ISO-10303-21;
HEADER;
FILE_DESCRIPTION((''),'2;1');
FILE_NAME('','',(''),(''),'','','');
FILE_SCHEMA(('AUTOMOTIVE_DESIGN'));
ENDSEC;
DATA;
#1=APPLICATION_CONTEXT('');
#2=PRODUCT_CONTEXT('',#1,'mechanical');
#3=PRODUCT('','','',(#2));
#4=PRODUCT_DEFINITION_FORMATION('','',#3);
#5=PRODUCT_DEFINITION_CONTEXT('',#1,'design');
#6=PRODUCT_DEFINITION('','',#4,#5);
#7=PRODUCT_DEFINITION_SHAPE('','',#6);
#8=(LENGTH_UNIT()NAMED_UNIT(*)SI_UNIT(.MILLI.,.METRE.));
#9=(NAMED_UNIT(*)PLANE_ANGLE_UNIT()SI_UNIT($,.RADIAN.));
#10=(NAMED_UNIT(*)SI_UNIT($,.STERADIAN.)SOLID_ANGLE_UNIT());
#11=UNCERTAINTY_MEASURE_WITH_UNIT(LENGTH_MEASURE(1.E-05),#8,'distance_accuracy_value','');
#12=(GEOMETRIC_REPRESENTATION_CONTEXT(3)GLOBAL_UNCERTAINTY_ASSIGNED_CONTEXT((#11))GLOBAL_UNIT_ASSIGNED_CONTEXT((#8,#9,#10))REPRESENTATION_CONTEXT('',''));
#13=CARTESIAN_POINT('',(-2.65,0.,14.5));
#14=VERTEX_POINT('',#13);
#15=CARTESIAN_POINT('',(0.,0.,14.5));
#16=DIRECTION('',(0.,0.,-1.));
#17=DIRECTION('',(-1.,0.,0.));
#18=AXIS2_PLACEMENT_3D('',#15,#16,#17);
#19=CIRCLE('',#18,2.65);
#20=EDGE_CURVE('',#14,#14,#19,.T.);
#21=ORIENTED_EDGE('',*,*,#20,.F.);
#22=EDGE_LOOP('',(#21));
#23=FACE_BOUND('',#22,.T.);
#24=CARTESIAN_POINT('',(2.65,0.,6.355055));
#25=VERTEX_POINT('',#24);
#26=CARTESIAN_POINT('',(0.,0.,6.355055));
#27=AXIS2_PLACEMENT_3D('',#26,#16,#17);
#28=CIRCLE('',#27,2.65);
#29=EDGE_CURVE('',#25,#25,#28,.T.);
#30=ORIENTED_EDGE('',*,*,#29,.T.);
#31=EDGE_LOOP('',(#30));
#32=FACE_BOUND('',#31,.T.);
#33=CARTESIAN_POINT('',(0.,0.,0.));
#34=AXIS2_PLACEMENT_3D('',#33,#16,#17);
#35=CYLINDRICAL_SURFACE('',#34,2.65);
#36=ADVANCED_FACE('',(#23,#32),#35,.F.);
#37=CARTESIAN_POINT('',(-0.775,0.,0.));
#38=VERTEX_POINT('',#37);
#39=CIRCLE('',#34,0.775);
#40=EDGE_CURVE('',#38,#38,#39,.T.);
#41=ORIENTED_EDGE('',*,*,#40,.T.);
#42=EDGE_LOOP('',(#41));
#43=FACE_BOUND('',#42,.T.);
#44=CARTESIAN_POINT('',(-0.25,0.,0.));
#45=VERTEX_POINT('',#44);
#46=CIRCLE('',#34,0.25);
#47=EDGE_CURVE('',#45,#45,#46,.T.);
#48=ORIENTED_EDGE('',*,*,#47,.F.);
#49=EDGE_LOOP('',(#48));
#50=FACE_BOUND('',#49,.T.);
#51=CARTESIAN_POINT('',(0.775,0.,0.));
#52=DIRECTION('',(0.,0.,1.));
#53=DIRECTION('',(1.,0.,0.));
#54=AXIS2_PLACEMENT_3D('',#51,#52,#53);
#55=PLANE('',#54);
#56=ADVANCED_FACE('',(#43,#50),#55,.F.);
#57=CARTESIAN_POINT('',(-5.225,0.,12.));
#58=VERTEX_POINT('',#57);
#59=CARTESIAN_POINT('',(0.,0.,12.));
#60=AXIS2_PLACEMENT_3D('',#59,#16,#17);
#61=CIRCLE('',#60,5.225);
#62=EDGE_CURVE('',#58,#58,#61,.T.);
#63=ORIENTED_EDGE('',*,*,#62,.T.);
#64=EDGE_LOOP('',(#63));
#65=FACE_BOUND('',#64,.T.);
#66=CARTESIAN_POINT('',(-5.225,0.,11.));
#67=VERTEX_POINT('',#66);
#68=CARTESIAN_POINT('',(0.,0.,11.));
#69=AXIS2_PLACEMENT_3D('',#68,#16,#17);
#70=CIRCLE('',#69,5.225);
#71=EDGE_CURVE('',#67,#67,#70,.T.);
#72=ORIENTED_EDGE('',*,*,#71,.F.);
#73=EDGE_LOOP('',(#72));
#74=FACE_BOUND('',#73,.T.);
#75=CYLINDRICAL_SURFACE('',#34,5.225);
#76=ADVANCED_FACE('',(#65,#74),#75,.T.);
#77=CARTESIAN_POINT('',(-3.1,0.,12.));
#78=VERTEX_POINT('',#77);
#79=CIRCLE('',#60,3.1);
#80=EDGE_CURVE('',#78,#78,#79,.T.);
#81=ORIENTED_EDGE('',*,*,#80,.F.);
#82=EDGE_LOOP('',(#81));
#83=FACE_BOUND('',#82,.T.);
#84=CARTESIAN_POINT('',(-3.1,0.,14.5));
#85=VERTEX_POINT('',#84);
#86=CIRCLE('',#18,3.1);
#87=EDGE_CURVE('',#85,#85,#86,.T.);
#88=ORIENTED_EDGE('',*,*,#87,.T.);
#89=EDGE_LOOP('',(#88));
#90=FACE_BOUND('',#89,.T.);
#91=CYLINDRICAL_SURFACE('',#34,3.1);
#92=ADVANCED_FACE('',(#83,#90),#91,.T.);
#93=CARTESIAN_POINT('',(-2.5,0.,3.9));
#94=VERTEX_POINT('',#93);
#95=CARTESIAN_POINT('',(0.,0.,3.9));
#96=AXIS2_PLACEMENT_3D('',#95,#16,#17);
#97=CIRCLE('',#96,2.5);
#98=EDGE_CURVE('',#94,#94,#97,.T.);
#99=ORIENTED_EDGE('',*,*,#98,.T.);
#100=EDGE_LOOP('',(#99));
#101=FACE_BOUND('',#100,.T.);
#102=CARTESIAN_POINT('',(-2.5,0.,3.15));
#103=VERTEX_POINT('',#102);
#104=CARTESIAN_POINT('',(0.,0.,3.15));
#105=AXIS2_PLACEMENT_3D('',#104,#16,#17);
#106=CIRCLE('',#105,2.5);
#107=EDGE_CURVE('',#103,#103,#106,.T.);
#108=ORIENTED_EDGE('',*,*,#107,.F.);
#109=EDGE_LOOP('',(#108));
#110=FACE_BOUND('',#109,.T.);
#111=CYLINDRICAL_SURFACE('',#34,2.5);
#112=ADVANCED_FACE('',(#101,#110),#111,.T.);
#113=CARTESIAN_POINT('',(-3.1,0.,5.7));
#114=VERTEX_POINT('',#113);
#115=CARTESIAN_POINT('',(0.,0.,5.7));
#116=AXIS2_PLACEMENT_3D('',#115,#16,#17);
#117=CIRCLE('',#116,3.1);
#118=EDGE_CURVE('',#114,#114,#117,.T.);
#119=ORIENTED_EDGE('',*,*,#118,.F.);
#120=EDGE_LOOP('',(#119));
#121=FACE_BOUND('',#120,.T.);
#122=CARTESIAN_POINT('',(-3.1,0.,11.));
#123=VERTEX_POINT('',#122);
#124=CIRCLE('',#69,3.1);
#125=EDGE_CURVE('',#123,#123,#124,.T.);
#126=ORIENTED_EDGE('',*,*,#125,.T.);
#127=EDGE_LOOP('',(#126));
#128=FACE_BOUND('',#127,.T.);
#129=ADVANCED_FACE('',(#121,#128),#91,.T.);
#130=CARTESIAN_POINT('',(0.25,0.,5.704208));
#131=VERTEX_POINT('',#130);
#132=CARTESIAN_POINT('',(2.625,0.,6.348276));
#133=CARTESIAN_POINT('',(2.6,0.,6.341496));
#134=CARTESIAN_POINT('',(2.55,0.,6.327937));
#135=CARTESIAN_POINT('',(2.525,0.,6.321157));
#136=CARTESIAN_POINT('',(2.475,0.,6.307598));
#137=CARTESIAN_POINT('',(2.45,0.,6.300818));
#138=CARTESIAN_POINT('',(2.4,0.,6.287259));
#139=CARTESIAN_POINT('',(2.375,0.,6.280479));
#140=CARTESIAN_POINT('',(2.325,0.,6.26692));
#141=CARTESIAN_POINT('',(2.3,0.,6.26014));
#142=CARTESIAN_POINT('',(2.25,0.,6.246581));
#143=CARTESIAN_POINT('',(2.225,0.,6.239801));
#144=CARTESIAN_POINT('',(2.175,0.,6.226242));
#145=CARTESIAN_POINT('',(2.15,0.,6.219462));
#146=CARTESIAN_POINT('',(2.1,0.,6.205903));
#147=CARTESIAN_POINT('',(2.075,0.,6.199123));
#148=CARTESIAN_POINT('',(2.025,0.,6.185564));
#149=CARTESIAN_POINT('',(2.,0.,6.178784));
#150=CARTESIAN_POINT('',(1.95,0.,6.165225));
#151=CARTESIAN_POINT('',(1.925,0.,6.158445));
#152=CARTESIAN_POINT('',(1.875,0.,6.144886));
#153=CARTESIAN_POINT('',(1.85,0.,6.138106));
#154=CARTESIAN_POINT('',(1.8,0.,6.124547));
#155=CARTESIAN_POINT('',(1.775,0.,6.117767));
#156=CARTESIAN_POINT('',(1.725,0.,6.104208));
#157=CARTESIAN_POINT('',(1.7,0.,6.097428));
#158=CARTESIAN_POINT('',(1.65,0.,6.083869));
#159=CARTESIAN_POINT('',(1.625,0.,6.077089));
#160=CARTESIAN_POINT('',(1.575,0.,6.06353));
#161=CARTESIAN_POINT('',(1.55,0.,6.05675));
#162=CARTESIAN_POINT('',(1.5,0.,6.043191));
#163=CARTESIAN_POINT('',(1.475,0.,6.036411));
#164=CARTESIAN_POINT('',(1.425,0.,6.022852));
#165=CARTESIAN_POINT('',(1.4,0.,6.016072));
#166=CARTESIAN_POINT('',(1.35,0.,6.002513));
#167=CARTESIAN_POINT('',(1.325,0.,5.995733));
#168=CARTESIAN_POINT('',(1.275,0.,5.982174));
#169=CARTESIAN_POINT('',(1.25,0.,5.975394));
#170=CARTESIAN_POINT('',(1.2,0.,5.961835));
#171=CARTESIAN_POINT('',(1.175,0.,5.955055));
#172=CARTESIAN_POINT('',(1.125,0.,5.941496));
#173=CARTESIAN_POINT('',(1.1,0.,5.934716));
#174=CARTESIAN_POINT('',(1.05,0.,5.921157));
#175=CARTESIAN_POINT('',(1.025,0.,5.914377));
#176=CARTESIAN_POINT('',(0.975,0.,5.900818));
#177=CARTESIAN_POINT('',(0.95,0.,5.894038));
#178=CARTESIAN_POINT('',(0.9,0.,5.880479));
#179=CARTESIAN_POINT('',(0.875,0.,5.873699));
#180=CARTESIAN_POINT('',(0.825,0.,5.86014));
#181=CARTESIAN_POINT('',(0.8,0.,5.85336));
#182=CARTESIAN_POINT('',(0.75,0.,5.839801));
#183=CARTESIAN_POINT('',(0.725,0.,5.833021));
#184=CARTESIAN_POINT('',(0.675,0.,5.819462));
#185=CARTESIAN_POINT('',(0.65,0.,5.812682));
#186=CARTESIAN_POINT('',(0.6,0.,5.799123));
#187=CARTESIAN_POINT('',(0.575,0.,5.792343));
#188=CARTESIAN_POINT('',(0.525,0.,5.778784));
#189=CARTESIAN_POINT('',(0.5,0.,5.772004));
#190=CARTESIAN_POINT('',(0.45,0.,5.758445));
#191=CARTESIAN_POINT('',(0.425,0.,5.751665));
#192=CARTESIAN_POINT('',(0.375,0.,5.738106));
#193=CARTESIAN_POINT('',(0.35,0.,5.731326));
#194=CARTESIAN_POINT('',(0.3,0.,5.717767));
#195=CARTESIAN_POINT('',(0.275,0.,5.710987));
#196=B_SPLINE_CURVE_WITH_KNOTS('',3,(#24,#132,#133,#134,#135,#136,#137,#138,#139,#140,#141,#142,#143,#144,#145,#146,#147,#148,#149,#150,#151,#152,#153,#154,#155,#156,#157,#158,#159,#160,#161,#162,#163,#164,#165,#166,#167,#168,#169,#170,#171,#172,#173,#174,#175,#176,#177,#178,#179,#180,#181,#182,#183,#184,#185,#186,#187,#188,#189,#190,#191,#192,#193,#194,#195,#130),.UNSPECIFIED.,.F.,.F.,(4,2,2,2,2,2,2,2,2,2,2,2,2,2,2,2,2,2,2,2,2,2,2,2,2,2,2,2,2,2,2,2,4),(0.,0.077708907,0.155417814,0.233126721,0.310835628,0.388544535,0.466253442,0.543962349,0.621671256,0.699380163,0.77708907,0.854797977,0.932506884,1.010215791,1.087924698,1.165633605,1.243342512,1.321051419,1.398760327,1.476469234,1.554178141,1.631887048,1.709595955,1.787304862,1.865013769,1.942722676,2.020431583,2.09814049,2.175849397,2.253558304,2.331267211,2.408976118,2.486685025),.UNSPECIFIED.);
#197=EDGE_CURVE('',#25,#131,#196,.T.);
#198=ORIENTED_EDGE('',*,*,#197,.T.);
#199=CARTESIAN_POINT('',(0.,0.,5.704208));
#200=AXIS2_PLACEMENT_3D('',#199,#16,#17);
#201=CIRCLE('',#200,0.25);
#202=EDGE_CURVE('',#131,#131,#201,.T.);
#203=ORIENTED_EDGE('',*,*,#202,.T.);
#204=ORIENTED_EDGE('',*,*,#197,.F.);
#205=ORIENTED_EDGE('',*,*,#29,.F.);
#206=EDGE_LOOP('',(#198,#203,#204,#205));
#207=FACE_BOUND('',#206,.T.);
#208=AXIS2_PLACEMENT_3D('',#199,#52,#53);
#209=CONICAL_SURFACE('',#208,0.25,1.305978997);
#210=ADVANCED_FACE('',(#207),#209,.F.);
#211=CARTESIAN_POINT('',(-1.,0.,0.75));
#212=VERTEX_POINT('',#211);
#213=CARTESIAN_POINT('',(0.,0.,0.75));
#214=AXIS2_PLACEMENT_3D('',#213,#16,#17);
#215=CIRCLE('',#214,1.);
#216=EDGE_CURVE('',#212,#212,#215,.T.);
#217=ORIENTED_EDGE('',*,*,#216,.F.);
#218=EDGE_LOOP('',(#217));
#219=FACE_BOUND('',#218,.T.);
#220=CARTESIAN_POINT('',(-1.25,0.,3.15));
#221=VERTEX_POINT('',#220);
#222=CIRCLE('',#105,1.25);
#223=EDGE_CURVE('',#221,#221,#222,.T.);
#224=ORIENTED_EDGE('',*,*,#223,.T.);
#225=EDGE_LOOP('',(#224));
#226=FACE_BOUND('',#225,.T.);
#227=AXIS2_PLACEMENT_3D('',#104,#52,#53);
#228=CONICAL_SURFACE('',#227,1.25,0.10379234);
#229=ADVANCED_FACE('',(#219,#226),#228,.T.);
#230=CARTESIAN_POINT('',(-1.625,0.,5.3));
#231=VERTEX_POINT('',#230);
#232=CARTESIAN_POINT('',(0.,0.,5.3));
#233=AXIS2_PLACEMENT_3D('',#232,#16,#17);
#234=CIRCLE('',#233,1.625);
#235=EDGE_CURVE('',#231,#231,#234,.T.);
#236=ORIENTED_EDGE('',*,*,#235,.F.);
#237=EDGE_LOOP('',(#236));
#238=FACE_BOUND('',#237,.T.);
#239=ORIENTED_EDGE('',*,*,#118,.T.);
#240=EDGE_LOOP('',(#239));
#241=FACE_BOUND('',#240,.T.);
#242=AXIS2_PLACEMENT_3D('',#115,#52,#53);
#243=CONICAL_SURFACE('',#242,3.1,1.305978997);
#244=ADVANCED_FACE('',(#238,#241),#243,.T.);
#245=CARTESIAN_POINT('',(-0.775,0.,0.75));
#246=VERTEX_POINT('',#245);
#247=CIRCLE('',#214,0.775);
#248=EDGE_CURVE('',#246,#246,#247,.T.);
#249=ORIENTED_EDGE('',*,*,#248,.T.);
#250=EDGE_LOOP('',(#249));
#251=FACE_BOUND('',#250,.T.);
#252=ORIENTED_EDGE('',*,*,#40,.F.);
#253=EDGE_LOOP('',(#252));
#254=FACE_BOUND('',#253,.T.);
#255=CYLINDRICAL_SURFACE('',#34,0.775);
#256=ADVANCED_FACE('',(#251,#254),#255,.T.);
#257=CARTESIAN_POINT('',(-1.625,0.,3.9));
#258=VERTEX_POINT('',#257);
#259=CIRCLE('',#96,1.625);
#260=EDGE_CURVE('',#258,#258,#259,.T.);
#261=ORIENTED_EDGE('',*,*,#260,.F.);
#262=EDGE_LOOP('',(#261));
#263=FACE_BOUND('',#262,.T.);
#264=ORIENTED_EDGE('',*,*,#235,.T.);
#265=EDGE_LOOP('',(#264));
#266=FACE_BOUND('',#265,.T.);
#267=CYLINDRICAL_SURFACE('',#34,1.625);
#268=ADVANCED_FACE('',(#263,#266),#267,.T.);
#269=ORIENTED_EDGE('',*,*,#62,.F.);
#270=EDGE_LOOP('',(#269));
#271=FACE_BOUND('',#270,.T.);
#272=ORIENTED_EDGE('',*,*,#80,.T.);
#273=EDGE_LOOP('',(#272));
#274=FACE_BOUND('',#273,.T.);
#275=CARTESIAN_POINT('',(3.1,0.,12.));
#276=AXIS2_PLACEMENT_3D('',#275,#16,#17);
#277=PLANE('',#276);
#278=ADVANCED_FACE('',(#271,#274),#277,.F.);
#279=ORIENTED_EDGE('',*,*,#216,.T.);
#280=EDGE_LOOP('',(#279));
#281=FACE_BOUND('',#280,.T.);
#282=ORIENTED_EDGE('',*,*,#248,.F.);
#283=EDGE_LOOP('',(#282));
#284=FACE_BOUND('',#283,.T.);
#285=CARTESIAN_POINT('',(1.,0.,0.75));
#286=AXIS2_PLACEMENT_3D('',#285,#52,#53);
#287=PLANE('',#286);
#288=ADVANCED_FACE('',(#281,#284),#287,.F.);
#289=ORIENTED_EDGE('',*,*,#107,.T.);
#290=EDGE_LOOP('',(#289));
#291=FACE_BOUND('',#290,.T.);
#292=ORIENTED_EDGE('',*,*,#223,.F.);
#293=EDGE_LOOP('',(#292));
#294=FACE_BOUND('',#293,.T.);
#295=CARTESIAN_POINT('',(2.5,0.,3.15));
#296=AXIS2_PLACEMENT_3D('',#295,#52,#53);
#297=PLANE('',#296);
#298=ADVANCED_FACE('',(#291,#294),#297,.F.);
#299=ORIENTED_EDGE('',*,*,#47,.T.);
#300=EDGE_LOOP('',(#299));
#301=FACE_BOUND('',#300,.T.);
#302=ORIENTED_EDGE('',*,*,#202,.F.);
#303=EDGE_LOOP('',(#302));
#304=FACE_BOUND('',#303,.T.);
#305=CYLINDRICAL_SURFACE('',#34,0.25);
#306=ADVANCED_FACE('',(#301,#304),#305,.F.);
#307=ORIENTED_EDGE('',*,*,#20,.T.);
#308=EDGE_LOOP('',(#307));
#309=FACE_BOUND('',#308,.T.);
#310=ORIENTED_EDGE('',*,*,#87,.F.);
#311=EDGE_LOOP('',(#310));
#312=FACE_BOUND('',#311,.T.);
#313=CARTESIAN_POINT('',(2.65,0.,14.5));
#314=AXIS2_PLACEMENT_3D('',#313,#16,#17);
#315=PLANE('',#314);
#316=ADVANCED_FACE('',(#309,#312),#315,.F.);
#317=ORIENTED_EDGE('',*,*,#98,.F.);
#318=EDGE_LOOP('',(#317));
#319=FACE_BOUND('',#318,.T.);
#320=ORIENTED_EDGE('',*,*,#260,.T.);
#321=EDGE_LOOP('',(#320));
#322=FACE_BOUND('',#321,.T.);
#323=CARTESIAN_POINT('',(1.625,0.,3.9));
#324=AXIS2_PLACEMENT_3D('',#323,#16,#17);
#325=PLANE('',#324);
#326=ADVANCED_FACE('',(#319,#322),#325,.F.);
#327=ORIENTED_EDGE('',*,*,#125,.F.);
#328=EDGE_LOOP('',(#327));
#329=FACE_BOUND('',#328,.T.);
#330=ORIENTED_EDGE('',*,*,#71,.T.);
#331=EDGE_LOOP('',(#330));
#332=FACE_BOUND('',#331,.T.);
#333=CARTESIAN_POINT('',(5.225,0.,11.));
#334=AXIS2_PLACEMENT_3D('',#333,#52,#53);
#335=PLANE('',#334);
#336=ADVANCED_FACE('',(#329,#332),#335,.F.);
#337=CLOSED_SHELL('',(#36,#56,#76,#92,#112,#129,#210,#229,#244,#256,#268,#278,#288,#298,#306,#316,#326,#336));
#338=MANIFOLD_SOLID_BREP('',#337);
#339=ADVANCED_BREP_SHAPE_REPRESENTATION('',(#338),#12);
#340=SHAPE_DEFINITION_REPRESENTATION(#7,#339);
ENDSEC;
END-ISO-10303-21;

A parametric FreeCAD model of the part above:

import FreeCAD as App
import Part
import Sketcher
Q = App.Units.Quantity

doc = App.newDocument("Part")
body = doc.addObject("PartDesign::Body", "Body")

# Sketch on XZ plane
sketch1 = body.newObject("Sketcher::SketchObject", "Sketch")
sketch1.AttachmentSupport = (doc.getObject("XZ_Plane"), [""])
sketch1.MapMode = "FlatFace"
sketch1.addGeometry([
    Part.LineSegment(App.Vector(2.65, 14.5, 0), App.Vector(3.1, 14.5, 0)),  # 0
    Part.LineSegment(App.Vector(3.1, 14.5, 0), App.Vector(3.1, 12, 0)),  # 1
    Part.LineSegment(App.Vector(3.1, 12, 0), App.Vector(5.22, 12, 0)),  # 2
    Part.LineSegment(App.Vector(5.22, 12, 0), App.Vector(5.22, 11, 0)),  # 3
    Part.LineSegment(App.Vector(5.22, 11, 0), App.Vector(3.1, 11, 0)),  # 4
    Part.LineSegment(App.Vector(3.1, 11, 0), App.Vector(3.1, 5.7, 0)),  # 5
    Part.LineSegment(App.Vector(3.1, 5.7, 0), App.Vector(1.62, 5.3, 0)),  # 6
    Part.LineSegment(App.Vector(1.62, 5.3, 0), App.Vector(1.62, 3.9, 0)),  # 7
    Part.LineSegment(App.Vector(1.62, 3.9, 0), App.Vector(2.5, 3.9, 0)),  # 8
    Part.LineSegment(App.Vector(2.5, 3.9, 0), App.Vector(2.5, 3.15, 0)),  # 9
    Part.LineSegment(App.Vector(2.5, 3.15, 0), App.Vector(1.25, 3.15, 0)),  # 10
    Part.LineSegment(App.Vector(1.25, 3.15, 0), App.Vector(1, 0.75, 0)),  # 11
    Part.LineSegment(App.Vector(1, 0.75, 0), App.Vector(0.78, 0.75, 0)),  # 12
    Part.LineSegment(App.Vector(0.78, 0.75, 0), App.Vector(0.78, 0, 0)),  # 13
    Part.LineSegment(App.Vector(0.78, 0, 0), App.Vector(0.25, 0, 0)),  # 14
    Part.LineSegment(App.Vector(0.25, 0, 0), App.Vector(0.25, 5.7, 0)),  # 15
    Part.LineSegment(App.Vector(0.25, 5.7, 0), App.Vector(2.65, 6.36, 0)),  # 16
    Part.LineSegment(App.Vector(2.65, 6.36, 0), App.Vector(2.65, 14.5, 0)),  # 17
], False)
sketch1.addConstraint([
    Sketcher.Constraint("Coincident", 0, 2, 1, 1),
    Sketcher.Constraint("Coincident", 1, 2, 2, 1),
    Sketcher.Constraint("Coincident", 2, 2, 3, 1),
    Sketcher.Constraint("Coincident", 3, 2, 4, 1),
    Sketcher.Constraint("Coincident", 4, 2, 5, 1),
    Sketcher.Constraint("Coincident", 5, 2, 6, 1),
    Sketcher.Constraint("Coincident", 6, 2, 7, 1),
    Sketcher.Constraint("Coincident", 7, 2, 8, 1),
    Sketcher.Constraint("Coincident", 8, 2, 9, 1),
    Sketcher.Constraint("Coincident", 9, 2, 10, 1),
    Sketcher.Constraint("Coincident", 10, 2, 11, 1),
    Sketcher.Constraint("Coincident", 11, 2, 12, 1),
    Sketcher.Constraint("Coincident", 12, 2, 13, 1),
    Sketcher.Constraint("Coincident", 13, 2, 14, 1),
    Sketcher.Constraint("Coincident", 14, 2, 15, 1),
    Sketcher.Constraint("Coincident", 15, 2, 16, 1),
    Sketcher.Constraint("Coincident", 16, 2, 17, 1),
    Sketcher.Constraint("Coincident", 17, 2, 0, 1),
    Sketcher.Constraint("Horizontal", 0),
    Sketcher.Constraint("Vertical", 1),
    Sketcher.Constraint("Horizontal", 2),
    Sketcher.Constraint("Vertical", 3),
    Sketcher.Constraint("Horizontal", 4),
    Sketcher.Constraint("Vertical", 5),
    Sketcher.Constraint("Vertical", 7),
    Sketcher.Constraint("Horizontal", 8),
    Sketcher.Constraint("Vertical", 9),
    Sketcher.Constraint("Horizontal", 10),
    Sketcher.Constraint("Horizontal", 12),
    Sketcher.Constraint("Vertical", 13),
    Sketcher.Constraint("Horizontal", 14),
    Sketcher.Constraint("Vertical", 15),
    Sketcher.Constraint("Vertical", 17),
    Sketcher.Constraint("PointOnObject", 13, 2, -1),
    Sketcher.Constraint("Parallel", 6, 16),
    Sketcher.Constraint("Vertical", 1, 2, 4, 2),
    Sketcher.Constraint("Equal", 9, 13),
    Sketcher.Constraint("DistanceY", 3, 2, 3, 1, Q("1 mm")),
    Sketcher.Constraint("DistanceY", 1, 2, 1, 1, Q("2.5 mm")),
    Sketcher.Constraint("DistanceY", 5, 2, 5, 1, Q("5.3 mm")),
    Sketcher.Constraint("DistanceY", 7, 2, 7, 1, Q("1.4 mm")),
    Sketcher.Constraint("DistanceY", -1, 1, 1, 2, Q("12 mm")),
    Sketcher.Constraint("DistanceX", -1, 1, 11, 2, Q("1 mm")),
    Sketcher.Constraint("DistanceX", 14, 2, 10, 2, Q("1 mm")),
    Sketcher.Constraint("DistanceX", 0, 1, 0, 2, Q("0.45 mm")),
    Sketcher.Constraint("DistanceX", 10, 2, 10, 1, Q("1.25 mm")),
    Sketcher.Constraint("DistanceY", 9, 2, 9, 1, Q("0.75 mm")),
    Sketcher.Constraint("DistanceX", -1, 1, 0, 2, Q("3.1 mm")),
    Sketcher.Constraint("DistanceY", -1, 1, 6, 2, Q("5.3 mm")),
    Sketcher.Constraint("DistanceX", -1, 1, 8, 2, Q("2.5 mm")),
    Sketcher.Constraint("DistanceX", 6, 2, 3, 2, Q("3.6 mm")),
    Sketcher.Constraint("DistanceX", 2, 1, 2, 2, Q("2.125 mm")),
    Sketcher.Constraint("DistanceX", 12, 2, 12, 1, Q("0.225 mm")),
    Sketcher.Constraint("DistanceY", 15, 1, 15, 2, Q("5.704208 mm")),
])
revolution = body.newObject("PartDesign::Revolution", "Revolution")
revolution.Profile = sketch1
revolution.ReferenceAxis = (sketch1, ["V_Axis"])
revolution.Angle = 360

doc.recompute()
